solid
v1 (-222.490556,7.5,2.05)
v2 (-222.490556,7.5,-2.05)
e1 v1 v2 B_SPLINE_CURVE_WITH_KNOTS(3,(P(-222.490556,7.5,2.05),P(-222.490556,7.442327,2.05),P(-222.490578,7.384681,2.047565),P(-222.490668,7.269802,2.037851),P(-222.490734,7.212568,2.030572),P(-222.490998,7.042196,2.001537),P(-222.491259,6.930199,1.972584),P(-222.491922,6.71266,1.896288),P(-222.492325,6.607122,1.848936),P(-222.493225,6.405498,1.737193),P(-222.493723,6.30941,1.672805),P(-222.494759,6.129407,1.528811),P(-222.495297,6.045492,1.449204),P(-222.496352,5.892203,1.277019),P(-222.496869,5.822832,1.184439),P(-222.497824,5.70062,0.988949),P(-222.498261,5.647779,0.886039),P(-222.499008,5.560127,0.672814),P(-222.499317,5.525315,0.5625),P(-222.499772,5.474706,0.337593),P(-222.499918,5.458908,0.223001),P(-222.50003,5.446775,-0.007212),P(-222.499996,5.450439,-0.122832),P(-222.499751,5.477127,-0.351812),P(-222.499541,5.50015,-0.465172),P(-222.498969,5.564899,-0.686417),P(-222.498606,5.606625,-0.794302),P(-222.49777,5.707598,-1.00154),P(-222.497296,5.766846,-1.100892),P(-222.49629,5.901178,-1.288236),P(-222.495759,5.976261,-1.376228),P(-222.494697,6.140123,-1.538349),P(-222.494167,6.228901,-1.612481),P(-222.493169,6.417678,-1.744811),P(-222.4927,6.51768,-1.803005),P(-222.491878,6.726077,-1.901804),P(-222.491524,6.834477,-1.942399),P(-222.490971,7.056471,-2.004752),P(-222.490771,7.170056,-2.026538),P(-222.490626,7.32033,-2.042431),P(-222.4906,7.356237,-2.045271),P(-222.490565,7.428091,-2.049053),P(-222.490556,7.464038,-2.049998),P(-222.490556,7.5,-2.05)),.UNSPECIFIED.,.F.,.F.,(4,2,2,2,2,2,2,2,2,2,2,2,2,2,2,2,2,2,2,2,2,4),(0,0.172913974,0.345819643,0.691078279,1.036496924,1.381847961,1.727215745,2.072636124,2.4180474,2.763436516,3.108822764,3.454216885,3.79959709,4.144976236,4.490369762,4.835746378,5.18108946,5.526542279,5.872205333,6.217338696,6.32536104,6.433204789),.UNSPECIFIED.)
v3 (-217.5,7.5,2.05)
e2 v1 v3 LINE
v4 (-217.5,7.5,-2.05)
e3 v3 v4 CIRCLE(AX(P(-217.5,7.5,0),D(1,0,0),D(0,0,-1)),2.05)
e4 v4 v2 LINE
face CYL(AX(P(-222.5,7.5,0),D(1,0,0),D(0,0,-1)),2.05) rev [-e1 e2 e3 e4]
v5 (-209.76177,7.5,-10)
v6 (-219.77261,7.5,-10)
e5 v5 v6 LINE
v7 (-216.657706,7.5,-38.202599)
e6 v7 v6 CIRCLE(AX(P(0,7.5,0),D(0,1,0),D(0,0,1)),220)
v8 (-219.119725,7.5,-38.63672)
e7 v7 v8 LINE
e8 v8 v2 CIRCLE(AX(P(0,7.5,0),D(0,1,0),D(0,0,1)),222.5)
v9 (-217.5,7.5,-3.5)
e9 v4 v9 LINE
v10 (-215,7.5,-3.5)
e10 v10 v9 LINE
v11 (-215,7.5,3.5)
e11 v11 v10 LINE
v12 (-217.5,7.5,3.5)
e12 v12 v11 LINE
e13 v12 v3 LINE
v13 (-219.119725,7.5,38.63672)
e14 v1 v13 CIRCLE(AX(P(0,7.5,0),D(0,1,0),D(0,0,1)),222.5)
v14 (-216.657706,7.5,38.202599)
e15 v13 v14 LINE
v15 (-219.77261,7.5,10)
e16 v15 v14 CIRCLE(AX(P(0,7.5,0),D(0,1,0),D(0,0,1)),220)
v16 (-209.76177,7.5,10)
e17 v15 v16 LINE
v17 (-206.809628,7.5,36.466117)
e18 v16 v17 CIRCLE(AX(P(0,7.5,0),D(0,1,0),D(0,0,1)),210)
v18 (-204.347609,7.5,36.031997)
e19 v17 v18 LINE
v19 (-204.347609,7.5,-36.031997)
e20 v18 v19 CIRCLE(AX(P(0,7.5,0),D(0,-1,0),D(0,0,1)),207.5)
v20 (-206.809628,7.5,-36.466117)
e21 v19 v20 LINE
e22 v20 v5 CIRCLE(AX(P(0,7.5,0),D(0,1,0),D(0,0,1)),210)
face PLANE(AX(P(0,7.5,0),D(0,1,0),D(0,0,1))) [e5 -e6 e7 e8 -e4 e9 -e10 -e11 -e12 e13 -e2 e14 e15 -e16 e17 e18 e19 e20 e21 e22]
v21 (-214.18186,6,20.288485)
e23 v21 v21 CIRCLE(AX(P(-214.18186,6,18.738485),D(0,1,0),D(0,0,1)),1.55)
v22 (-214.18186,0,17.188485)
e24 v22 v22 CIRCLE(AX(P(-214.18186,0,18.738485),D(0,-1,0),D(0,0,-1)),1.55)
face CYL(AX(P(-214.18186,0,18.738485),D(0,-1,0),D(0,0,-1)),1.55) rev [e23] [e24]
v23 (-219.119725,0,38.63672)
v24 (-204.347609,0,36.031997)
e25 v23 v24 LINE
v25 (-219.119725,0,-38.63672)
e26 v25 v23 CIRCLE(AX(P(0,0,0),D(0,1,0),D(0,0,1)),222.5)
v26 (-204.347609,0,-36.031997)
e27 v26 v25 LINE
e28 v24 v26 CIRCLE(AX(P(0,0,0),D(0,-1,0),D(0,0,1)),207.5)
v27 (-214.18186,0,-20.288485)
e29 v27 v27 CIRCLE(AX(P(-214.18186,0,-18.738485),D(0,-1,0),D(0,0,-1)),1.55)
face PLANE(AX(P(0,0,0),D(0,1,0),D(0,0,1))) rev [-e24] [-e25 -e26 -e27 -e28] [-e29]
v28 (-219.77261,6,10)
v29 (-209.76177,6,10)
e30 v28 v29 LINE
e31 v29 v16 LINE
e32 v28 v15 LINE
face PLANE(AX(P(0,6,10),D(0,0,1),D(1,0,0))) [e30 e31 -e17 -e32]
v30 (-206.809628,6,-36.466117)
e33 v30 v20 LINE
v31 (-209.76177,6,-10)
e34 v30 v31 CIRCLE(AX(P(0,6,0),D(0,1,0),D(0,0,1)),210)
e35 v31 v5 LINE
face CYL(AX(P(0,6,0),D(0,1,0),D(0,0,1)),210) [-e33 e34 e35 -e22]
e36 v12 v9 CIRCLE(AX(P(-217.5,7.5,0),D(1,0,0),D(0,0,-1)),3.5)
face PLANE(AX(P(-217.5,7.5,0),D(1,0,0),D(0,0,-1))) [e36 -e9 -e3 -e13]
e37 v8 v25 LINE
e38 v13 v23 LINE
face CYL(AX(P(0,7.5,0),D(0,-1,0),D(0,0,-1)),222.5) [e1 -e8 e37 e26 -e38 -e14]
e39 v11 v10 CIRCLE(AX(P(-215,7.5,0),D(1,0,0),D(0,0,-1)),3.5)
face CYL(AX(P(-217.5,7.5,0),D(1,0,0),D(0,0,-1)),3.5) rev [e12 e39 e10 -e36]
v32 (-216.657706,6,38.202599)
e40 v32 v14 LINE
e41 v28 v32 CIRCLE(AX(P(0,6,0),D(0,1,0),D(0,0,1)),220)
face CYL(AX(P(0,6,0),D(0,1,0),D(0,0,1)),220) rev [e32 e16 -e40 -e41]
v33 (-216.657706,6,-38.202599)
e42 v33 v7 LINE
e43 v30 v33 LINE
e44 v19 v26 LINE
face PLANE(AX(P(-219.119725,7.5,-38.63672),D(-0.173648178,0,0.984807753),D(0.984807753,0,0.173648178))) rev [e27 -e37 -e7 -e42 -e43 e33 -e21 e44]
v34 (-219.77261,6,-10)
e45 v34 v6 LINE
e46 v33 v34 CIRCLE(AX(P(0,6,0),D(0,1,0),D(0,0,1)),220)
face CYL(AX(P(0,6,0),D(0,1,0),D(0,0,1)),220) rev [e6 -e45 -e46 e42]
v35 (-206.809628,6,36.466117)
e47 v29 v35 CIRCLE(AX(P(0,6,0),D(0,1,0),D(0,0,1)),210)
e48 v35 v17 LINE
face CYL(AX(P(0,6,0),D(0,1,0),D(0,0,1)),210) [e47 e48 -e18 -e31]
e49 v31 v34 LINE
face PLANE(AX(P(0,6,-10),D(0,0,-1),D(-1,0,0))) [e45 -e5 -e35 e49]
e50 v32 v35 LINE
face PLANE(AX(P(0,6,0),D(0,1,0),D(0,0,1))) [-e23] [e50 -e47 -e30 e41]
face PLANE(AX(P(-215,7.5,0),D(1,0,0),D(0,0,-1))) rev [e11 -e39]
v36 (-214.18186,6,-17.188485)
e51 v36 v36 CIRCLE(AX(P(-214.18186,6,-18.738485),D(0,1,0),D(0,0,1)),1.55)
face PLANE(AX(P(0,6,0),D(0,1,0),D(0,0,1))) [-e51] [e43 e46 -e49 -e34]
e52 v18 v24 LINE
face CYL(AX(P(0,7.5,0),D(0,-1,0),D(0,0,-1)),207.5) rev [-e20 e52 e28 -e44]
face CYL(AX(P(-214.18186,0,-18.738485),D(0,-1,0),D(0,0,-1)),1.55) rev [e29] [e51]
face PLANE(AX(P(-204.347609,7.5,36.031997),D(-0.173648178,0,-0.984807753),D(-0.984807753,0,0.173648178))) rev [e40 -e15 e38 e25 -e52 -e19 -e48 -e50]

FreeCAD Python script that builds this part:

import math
import FreeCAD as App
import Part
import Sketcher

V = App.Vector
Q = App.Units.Quantity

doc = App.newDocument("Part")
body = doc.addObject("PartDesign::Body", "Body")

# Sketch on XZ plane
sketch1 = body.newObject("Sketcher::SketchObject", "Sketch")
sketch1.AttachmentSupport = (doc.getObject("XZ_Plane"), [""])
sketch1.MapMode = "FlatFace"
sketch1.addGeometry([
    Part.LineSegment(V(-204, -36, 0), V(-219, -39, 0)),
    Part.ArcOfCircle(Part.Circle(V(0, 0, 0), V(0, 0, 1), 222), math.radians(170), math.radians(190)),
    Part.LineSegment(V(-219, 39, 0), V(-204, 36, 0)),
    Part.ArcOfCircle(Part.Circle(V(0, 0, 0), V(0, 0, 1), 207), math.radians(170), math.radians(190)),
], False)
sketch1.addConstraint([
    Sketcher.Constraint("Coincident", 0, 2, 1, 2),
    Sketcher.Constraint("Coincident", 1, 1, 2, 1),
    Sketcher.Constraint("Coincident", 2, 2, 3, 1),
    Sketcher.Constraint("Coincident", 3, 2, 0, 1),
    Sketcher.Constraint("Coincident", 1, 3, -1, 1),
    Sketcher.Constraint("Coincident", 3, 3, -1, 1),
    Sketcher.Constraint("Vertical", 0, 2, 1, 1),
    Sketcher.Constraint("Vertical", 2, 2, 3, 2),
    Sketcher.Constraint("Radius", 1, Q("222.5 mm")),
    Sketcher.Constraint("Radius", 3, Q("207.5 mm")),
    Sketcher.Constraint("Angle", 0, Q("-170 deg")),
    Sketcher.Constraint("DistanceY", 0, 2, -1, 1, Q("38.63672 mm")),
])
pad1 = body.newObject("PartDesign::Pad", "Pad")
pad1.Profile = sketch1
pad1.Length = 7.5
pad1.Reversed = True

# Sketch on XZ plane
sketch2 = body.newObject("Sketcher::SketchObject", "Sketch001")
sketch2.AttachmentSupport = (doc.getObject("XZ_Plane"), [""])
sketch2.MapMode = "FlatFace"
sketch2.AttachmentOffset = App.Placement(V(0, 0, -7.5), App.Rotation())
sketch2.addGeometry([
    Part.LineSegment(V(-207, -36, 0), V(-217, -38, 0)),  # 0
    Part.ArcOfCircle(Part.Circle(V(0, 0, 0), V(0, 0, 1), 220), math.radians(-177.39), math.radians(-170)),  # 1
    Part.LineSegment(V(-220, -10, 0), V(-210, -10, 0)),  # 2
    Part.ArcOfCircle(Part.Circle(V(0, 0, 0), V(0, 0, 1), 210), math.radians(-177.27), math.radians(-170)),  # 3
    Part.LineSegment(V(-210, 10, 0), V(-220, 10, 0)),  # 4
    Part.ArcOfCircle(Part.Circle(V(0, 0, 0), V(0, 0, 1), 220), math.radians(170), math.radians(177.39)),  # 5
    Part.LineSegment(V(-217, 38, 0), V(-207, 36, 0)),  # 6
    Part.ArcOfCircle(Part.Circle(V(0, 0, 0), V(0, 0, 1), 210), math.radians(170), math.radians(177.27)),  # 7
], False)
sketch2.addConstraint([
    Sketcher.Constraint("Coincident", 0, 2, 1, 2),
    Sketcher.Constraint("Coincident", 1, 1, 2, 1),
    Sketcher.Constraint("Coincident", 2, 2, 3, 1),
    Sketcher.Constraint("Coincident", 3, 2, 0, 1),
    Sketcher.Constraint("Coincident", 4, 2, 5, 2),
    Sketcher.Constraint("Coincident", 5, 1, 6, 1),
    Sketcher.Constraint("Coincident", 6, 2, 7, 1),
    Sketcher.Constraint("Coincident", 7, 2, 4, 1),
    Sketcher.Constraint("Horizontal", 2),
    Sketcher.Constraint("Horizontal", 4),
    Sketcher.Constraint("Coincident", 1, 3, -1, 1),
    Sketcher.Constraint("Coincident", 3, 3, -1, 1),
    Sketcher.Constraint("Coincident", 5, 3, -1, 1),
    Sketcher.Constraint("Coincident", 7, 3, -1, 1),
    Sketcher.Constraint("Equal", 1, 5),
    Sketcher.Constraint("Equal", 3, 7),
    Sketcher.Constraint("Vertical", 1, 1, 4, 2),
    Sketcher.Constraint("Vertical", 0, 2, 5, 1),
    Sketcher.Constraint("Vertical", 3, 2, 6, 2),
    Sketcher.Constraint("Radius", 1, Q("220 mm")),
    Sketcher.Constraint("Radius", 3, Q("210 mm")),
    Sketcher.Constraint("Angle", 0, Q("-170 deg")),
    Sketcher.Constraint("DistanceY", 1, 1, -1, 1, Q("10 mm")),
    Sketcher.Constraint("DistanceY", 0, 2, -1, 1, Q("38.202599 mm")),
])
pocket1 = body.newObject("PartDesign::Pocket", "Pocket")
pocket1.Profile = sketch2
pocket1.Length = 1.5
pocket1.Reversed = True

# Sketch on YZ plane
sketch3 = body.newObject("Sketcher::SketchObject", "Sketch002")
sketch3.AttachmentSupport = (doc.getObject("YZ_Plane"), [""])
sketch3.MapMode = "FlatFace"
sketch3.AttachmentOffset = App.Placement(V(0, 0, -215), App.Rotation())
sketch3.addGeometry(Part.Circle(V(7.5, 0, 0), V(0, 0, 1), 3.5), False)
sketch3.addConstraint([
    Sketcher.Constraint("PointOnObject", 0, 3, -1),
    Sketcher.Constraint("Diameter", 0, Q("7 mm")),
    Sketcher.Constraint("DistanceX", -1, 1, 0, 3, Q("7.5 mm")),
])
pocket2 = body.newObject("PartDesign::Pocket", "Pocket001")
pocket2.Profile = sketch3
pocket2.Length = 2.5

# Sketch on YZ plane
sketch4 = body.newObject("Sketcher::SketchObject", "Sketch003")
sketch4.AttachmentSupport = (doc.getObject("YZ_Plane"), [""])
sketch4.MapMode = "FlatFace"
sketch4.AttachmentOffset = App.Placement(V(0, 0, -215), App.Rotation())
sketch4.addGeometry(Part.Circle(V(7.5, 0, 0), V(0, 0, 1), 2), False)
sketch4.addConstraint([
    Sketcher.Constraint("PointOnObject", 0, 3, -1),
    Sketcher.Constraint("Diameter", 0, Q("4.1 mm")),
    Sketcher.Constraint("DistanceX", -1, 1, 0, 3, Q("7.5 mm")),
])
pocket3 = body.newObject("PartDesign::Pocket", "Pocket002")
pocket3.Profile = sketch4
pocket3.Type = "ThroughAll"

# Sketch on XZ plane
sketch5 = body.newObject("Sketcher::SketchObject", "Sketch004")
sketch5.AttachmentSupport = (doc.getObject("XZ_Plane"), [""])
sketch5.MapMode = "FlatFace"
sketch5.addGeometry([
    Part.Circle(V(-214.2, 18.7, 0), V(0, 0, 1), 1.6),
    Part.Circle(V(-214.2, -18.7, 0), V(0, 0, 1), 1.6),
], False)
sketch5.addConstraint([
    Sketcher.Constraint("Equal", 0, 1),
    Sketcher.Constraint("Symmetric", 0, 3, 1, 3, -1),
    Sketcher.Constraint("Diameter", 0, Q("3.1 mm")),
    Sketcher.Constraint("DistanceX", 0, 3, -1, 1, Q("214.18186 mm")),
    Sketcher.Constraint("DistanceY", 1, 3, 0, 3, Q("37.476969 mm")),
])
doc.recompute()
hole = body.newObject("PartDesign::Hole", "Hole")
hole.Profile = sketch5
hole.ThreadType = "None"
hole.Diameter = 3.1
hole.DepthType = "ThroughAll"

doc.recompute()
